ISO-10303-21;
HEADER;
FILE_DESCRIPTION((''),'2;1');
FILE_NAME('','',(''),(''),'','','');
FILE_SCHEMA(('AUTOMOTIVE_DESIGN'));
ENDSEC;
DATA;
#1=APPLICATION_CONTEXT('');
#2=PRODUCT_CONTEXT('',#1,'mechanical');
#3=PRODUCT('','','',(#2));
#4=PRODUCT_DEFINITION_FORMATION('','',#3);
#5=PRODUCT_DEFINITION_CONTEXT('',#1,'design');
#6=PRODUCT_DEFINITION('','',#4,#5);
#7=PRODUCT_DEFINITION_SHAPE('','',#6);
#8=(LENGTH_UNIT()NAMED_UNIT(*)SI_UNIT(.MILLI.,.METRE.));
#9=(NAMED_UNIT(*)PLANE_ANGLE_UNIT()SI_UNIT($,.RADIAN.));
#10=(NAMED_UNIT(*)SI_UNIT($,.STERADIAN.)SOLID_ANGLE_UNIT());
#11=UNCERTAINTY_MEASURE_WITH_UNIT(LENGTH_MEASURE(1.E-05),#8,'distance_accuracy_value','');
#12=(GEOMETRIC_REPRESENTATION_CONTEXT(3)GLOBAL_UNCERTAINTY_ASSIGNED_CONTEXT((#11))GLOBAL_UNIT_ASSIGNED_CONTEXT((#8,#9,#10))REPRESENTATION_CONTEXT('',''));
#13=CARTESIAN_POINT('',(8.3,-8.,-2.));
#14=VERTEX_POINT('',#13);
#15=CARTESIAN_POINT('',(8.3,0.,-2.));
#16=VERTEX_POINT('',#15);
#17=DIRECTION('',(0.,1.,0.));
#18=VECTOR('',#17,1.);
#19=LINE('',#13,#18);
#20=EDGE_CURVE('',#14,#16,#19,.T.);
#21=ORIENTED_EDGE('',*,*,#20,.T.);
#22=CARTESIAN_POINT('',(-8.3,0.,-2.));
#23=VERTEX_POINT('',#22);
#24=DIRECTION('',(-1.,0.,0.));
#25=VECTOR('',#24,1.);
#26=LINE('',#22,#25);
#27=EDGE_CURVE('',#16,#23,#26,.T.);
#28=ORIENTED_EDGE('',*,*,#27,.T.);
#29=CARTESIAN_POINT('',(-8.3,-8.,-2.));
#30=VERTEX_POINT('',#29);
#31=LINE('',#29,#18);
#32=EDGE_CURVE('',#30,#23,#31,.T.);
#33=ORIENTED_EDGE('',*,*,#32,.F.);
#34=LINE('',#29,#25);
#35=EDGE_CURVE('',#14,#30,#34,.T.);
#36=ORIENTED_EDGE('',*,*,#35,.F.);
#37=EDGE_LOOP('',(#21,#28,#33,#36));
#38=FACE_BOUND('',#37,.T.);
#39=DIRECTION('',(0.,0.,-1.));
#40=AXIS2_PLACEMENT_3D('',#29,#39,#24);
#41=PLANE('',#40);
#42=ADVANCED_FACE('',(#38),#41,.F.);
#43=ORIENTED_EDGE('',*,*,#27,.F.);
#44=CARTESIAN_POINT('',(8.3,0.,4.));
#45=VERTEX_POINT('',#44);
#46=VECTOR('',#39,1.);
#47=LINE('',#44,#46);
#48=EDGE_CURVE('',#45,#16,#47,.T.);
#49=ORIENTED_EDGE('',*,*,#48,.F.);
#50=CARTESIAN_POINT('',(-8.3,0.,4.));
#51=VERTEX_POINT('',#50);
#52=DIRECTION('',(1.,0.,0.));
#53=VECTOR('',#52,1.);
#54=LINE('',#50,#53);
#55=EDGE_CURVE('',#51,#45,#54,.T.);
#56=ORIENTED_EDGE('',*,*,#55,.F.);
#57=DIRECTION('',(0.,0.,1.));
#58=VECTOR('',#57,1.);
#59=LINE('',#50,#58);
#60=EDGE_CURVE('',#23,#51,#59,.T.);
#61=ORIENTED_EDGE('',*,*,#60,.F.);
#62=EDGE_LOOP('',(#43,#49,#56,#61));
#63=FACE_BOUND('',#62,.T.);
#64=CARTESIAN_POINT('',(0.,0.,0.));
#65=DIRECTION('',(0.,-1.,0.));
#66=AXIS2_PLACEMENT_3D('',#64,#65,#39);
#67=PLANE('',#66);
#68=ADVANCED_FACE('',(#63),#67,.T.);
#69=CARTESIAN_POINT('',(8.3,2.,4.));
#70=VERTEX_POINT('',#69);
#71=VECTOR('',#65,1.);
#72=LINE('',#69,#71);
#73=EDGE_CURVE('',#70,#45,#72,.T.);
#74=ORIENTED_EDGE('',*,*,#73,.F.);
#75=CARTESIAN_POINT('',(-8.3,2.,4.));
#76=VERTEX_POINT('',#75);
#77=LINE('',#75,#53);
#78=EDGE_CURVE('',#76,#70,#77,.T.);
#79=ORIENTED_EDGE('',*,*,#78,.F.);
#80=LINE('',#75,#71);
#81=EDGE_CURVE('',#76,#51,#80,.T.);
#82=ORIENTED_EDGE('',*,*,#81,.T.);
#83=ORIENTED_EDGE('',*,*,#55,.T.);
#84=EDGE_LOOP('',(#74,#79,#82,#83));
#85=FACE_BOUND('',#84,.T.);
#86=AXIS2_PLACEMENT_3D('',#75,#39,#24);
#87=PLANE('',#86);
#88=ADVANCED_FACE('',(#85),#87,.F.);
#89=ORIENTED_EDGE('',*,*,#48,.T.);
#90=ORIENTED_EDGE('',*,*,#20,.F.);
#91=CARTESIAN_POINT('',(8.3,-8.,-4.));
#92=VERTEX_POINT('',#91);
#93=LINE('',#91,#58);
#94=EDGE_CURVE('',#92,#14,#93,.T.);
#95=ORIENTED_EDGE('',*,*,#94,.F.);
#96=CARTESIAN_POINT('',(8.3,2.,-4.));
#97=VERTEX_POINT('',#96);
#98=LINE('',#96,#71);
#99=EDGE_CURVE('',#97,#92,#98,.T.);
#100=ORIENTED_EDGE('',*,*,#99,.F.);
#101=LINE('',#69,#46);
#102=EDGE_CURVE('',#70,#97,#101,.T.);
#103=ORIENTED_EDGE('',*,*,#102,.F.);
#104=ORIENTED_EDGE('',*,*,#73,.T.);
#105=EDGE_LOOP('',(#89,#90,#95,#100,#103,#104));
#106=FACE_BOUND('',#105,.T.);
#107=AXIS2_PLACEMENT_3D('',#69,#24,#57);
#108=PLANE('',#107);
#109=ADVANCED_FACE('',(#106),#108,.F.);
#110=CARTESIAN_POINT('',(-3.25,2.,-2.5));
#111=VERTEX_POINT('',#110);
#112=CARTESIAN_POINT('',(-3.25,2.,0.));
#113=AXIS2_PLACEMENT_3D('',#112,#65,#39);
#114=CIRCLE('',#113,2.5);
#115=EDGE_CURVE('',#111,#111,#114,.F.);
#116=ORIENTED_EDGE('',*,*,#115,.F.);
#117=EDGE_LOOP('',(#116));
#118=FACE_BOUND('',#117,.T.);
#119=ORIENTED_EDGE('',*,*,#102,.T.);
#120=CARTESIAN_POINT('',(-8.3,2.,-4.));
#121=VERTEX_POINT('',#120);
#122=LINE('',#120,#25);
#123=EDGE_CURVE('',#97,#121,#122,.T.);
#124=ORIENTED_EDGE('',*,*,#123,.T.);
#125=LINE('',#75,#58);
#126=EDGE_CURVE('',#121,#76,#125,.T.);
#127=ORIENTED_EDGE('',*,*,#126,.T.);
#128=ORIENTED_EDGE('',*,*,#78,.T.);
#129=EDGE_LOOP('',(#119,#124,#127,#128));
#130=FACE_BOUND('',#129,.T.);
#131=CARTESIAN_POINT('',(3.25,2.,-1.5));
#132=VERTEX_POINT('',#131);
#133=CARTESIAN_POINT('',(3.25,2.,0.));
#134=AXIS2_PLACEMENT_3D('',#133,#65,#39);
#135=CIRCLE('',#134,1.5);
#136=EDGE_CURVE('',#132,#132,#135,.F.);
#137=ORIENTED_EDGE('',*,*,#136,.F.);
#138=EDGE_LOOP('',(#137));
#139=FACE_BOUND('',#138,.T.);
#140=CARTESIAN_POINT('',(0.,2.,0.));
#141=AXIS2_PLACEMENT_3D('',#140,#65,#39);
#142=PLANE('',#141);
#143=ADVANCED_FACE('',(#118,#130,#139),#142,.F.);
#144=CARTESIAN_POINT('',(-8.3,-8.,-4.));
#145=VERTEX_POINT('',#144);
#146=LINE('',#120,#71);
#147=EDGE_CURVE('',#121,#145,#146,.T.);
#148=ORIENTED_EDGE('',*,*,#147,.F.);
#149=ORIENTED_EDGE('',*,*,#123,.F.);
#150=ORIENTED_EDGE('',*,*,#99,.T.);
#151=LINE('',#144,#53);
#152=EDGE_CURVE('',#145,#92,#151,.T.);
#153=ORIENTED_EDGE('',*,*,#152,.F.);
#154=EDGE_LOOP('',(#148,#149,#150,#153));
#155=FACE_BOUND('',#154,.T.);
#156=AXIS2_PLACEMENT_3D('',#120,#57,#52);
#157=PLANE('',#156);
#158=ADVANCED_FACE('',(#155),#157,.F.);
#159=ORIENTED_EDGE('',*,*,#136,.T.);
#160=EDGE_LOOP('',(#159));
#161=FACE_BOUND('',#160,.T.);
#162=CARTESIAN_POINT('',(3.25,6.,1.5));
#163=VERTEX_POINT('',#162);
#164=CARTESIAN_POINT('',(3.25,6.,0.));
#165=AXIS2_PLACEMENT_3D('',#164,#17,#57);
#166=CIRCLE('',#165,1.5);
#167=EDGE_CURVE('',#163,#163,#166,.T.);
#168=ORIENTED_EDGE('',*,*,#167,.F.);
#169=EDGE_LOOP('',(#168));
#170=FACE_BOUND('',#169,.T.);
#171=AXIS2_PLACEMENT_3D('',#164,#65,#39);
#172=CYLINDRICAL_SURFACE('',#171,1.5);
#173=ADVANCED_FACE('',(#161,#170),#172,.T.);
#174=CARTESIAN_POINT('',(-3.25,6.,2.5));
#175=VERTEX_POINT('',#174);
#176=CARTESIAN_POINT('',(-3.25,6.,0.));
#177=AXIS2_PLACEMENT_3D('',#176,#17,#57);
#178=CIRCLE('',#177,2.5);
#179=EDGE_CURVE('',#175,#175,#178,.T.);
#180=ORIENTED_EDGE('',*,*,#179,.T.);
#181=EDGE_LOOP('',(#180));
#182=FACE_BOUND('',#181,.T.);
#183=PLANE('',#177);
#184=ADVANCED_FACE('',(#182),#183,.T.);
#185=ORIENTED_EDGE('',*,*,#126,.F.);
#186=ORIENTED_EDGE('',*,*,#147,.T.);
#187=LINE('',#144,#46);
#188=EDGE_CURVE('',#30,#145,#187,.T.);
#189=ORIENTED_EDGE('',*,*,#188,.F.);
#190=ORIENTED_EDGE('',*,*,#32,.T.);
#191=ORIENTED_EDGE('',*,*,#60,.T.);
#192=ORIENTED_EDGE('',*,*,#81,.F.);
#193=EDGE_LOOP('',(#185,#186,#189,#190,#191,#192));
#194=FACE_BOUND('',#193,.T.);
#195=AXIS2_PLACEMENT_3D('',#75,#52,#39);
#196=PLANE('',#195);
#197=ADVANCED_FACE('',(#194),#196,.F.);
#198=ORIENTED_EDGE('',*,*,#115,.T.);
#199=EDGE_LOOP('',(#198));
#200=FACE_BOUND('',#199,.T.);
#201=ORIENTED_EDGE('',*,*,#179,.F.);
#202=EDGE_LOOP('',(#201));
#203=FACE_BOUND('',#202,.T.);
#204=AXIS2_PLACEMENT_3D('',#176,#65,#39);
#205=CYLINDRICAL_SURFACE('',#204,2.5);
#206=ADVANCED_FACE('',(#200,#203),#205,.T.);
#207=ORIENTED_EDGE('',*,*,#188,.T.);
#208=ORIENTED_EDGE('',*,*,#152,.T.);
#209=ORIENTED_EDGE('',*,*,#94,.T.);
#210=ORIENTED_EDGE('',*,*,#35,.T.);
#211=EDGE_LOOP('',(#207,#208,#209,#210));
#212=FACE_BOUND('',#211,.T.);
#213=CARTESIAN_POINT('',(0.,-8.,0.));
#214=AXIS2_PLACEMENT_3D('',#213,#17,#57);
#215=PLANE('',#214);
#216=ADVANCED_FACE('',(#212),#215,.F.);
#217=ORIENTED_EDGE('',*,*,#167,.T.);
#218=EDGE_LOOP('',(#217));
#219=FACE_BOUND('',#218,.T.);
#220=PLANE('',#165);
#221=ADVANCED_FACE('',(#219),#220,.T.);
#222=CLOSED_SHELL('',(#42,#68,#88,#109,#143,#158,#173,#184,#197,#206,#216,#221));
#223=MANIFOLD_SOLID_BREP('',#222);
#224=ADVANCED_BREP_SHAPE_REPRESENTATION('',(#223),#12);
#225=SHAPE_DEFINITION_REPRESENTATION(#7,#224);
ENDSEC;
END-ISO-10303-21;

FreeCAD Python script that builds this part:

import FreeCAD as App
import Part
import Sketcher
from FreeCAD import Vector
Q = App.Units.Quantity

doc = App.newDocument("Part")
body = doc.addObject("PartDesign::Body", "Body")

# Sketch on XZ plane
sketch1 = doc.addObject("Sketcher::SketchObject", "Sketch")
body.addObject(sketch1)
sketch1.AttachmentSupport = (doc.XZ_Plane, [""])
sketch1.MapMode = "FlatFace"
sketch1.addGeometry(Part.LineSegment(Vector(-8.3, -4, 0), Vector(-8.3, 4, 0)), False)
sketch1.addGeometry(Part.LineSegment(Vector(-8.3, 4, 0), Vector(8.3, 4, 0)), False)
sketch1.addGeometry(Part.LineSegment(Vector(8.3, 4, 0), Vector(8.3, -4, 0)), False)
sketch1.addGeometry(Part.LineSegment(Vector(8.3, -4, 0), Vector(-8.3, -4, 0)), False)
sketch1.addConstraint(Sketcher.Constraint("Coincident", 0, 2, 1, 1))
sketch1.addConstraint(Sketcher.Constraint("Coincident", 1, 2, 2, 1))
sketch1.addConstraint(Sketcher.Constraint("Coincident", 2, 2, 3, 1))
sketch1.addConstraint(Sketcher.Constraint("Coincident", 3, 2, 0, 1))
sketch1.addConstraint(Sketcher.Constraint("Vertical", 0))
sketch1.addConstraint(Sketcher.Constraint("Horizontal", 1))
sketch1.addConstraint(Sketcher.Constraint("Vertical", 2))
sketch1.addConstraint(Sketcher.Constraint("Horizontal", 3))
sketch1.addConstraint(Sketcher.Constraint("Symmetric", 0, 2, 2, 2, -1, 1))
sketch1.addConstraint(Sketcher.Constraint("DistanceY", 0, 1, 0, 2, Q("8 mm")))
sketch1.addConstraint(Sketcher.Constraint("DistanceX", 1, 1, 1, 2, Q("16.6 mm")))
pad1 = doc.addObject("PartDesign::Pad", "Pad")
body.addObject(pad1)
pad1.Profile = sketch1
pad1.Length = 2
pad1.Reversed = True

# Sketch on XZ plane
sketch2 = doc.addObject("Sketcher::SketchObject", "Sketch001")
body.addObject(sketch2)
sketch2.AttachmentSupport = (doc.XZ_Plane, [""])
sketch2.MapMode = "FlatFace"
sketch2.AttachmentOffset = App.Placement(Vector(0, 0, -2), App.Rotation())
sketch2.addGeometry(Part.Circle(Vector(-3.25, 0, 0), Vector(0, 0, 1), 2.5), False)
sketch2.addGeometry(Part.Circle(Vector(3.25, 0, 0), Vector(0, 0, 1), 1.5), False)
sketch2.addConstraint(Sketcher.Constraint("Symmetric", 0, 3, 1, 3, -1, 1))
sketch2.addConstraint(Sketcher.Constraint("PointOnObject", 0, 3, -1))
sketch2.addConstraint(Sketcher.Constraint("Diameter", 0, Q("5 mm")))
sketch2.addConstraint(Sketcher.Constraint("Diameter", 1, Q("3 mm")))
sketch2.addConstraint(Sketcher.Constraint("DistanceX", 0, 3, 1, 3, Q("6.5 mm")))
pad2 = doc.addObject("PartDesign::Pad", "Pad001")
body.addObject(pad2)
pad2.Profile = sketch2
pad2.Length = 4
pad2.Reversed = True

# Sketch on XZ plane
sketch3 = doc.addObject("Sketcher::SketchObject", "Sketch002")
body.addObject(sketch3)
sketch3.AttachmentSupport = (doc.XZ_Plane, [""])
sketch3.MapMode = "FlatFace"
sketch3.addGeometry(Part.LineSegment(Vector(-8.3, -2, 0), Vector(-8.3, -4, 0)), False)
sketch3.addGeometry(Part.LineSegment(Vector(-8.3, -4, 0), Vector(8.3, -4, 0)), False)
sketch3.addGeometry(Part.LineSegment(Vector(8.3, -4, 0), Vector(8.3, -2, 0)), False)
sketch3.addGeometry(Part.LineSegment(Vector(8.3, -2, 0), Vector(-8.3, -2, 0)), False)
sketch3.addConstraint(Sketcher.Constraint("Coincident", 0, 2, 1, 1))
sketch3.addConstraint(Sketcher.Constraint("Coincident", 1, 2, 2, 1))
sketch3.addConstraint(Sketcher.Constraint("Coincident", 2, 2, 3, 1))
sketch3.addConstraint(Sketcher.Constraint("Coincident", 3, 2, 0, 1))
sketch3.addConstraint(Sketcher.Constraint("Vertical", 0))
sketch3.addConstraint(Sketcher.Constraint("Horizontal", 1))
sketch3.addConstraint(Sketcher.Constraint("Vertical", 2))
sketch3.addConstraint(Sketcher.Constraint("Horizontal", 3))
sketch3.addConstraint(Sketcher.Constraint("DistanceY", 0, 2, 0, 1, Q("2 mm")))
sketch3.addConstraint(Sketcher.Constraint("DistanceX", 1, 1, 1, 2, Q("16.6 mm")))
sketch3.addConstraint(Sketcher.Constraint("DistanceY", 0, 2, -1, 1, Q("4 mm")))
sketch3.addConstraint(Sketcher.Constraint("DistanceX", 0, 2, -1, 1, Q("8.3 mm")))
pad3 = doc.addObject("PartDesign::Pad", "Pad002")
body.addObject(pad3)
pad3.Profile = sketch3
pad3.Length = 8

doc.recompute()
